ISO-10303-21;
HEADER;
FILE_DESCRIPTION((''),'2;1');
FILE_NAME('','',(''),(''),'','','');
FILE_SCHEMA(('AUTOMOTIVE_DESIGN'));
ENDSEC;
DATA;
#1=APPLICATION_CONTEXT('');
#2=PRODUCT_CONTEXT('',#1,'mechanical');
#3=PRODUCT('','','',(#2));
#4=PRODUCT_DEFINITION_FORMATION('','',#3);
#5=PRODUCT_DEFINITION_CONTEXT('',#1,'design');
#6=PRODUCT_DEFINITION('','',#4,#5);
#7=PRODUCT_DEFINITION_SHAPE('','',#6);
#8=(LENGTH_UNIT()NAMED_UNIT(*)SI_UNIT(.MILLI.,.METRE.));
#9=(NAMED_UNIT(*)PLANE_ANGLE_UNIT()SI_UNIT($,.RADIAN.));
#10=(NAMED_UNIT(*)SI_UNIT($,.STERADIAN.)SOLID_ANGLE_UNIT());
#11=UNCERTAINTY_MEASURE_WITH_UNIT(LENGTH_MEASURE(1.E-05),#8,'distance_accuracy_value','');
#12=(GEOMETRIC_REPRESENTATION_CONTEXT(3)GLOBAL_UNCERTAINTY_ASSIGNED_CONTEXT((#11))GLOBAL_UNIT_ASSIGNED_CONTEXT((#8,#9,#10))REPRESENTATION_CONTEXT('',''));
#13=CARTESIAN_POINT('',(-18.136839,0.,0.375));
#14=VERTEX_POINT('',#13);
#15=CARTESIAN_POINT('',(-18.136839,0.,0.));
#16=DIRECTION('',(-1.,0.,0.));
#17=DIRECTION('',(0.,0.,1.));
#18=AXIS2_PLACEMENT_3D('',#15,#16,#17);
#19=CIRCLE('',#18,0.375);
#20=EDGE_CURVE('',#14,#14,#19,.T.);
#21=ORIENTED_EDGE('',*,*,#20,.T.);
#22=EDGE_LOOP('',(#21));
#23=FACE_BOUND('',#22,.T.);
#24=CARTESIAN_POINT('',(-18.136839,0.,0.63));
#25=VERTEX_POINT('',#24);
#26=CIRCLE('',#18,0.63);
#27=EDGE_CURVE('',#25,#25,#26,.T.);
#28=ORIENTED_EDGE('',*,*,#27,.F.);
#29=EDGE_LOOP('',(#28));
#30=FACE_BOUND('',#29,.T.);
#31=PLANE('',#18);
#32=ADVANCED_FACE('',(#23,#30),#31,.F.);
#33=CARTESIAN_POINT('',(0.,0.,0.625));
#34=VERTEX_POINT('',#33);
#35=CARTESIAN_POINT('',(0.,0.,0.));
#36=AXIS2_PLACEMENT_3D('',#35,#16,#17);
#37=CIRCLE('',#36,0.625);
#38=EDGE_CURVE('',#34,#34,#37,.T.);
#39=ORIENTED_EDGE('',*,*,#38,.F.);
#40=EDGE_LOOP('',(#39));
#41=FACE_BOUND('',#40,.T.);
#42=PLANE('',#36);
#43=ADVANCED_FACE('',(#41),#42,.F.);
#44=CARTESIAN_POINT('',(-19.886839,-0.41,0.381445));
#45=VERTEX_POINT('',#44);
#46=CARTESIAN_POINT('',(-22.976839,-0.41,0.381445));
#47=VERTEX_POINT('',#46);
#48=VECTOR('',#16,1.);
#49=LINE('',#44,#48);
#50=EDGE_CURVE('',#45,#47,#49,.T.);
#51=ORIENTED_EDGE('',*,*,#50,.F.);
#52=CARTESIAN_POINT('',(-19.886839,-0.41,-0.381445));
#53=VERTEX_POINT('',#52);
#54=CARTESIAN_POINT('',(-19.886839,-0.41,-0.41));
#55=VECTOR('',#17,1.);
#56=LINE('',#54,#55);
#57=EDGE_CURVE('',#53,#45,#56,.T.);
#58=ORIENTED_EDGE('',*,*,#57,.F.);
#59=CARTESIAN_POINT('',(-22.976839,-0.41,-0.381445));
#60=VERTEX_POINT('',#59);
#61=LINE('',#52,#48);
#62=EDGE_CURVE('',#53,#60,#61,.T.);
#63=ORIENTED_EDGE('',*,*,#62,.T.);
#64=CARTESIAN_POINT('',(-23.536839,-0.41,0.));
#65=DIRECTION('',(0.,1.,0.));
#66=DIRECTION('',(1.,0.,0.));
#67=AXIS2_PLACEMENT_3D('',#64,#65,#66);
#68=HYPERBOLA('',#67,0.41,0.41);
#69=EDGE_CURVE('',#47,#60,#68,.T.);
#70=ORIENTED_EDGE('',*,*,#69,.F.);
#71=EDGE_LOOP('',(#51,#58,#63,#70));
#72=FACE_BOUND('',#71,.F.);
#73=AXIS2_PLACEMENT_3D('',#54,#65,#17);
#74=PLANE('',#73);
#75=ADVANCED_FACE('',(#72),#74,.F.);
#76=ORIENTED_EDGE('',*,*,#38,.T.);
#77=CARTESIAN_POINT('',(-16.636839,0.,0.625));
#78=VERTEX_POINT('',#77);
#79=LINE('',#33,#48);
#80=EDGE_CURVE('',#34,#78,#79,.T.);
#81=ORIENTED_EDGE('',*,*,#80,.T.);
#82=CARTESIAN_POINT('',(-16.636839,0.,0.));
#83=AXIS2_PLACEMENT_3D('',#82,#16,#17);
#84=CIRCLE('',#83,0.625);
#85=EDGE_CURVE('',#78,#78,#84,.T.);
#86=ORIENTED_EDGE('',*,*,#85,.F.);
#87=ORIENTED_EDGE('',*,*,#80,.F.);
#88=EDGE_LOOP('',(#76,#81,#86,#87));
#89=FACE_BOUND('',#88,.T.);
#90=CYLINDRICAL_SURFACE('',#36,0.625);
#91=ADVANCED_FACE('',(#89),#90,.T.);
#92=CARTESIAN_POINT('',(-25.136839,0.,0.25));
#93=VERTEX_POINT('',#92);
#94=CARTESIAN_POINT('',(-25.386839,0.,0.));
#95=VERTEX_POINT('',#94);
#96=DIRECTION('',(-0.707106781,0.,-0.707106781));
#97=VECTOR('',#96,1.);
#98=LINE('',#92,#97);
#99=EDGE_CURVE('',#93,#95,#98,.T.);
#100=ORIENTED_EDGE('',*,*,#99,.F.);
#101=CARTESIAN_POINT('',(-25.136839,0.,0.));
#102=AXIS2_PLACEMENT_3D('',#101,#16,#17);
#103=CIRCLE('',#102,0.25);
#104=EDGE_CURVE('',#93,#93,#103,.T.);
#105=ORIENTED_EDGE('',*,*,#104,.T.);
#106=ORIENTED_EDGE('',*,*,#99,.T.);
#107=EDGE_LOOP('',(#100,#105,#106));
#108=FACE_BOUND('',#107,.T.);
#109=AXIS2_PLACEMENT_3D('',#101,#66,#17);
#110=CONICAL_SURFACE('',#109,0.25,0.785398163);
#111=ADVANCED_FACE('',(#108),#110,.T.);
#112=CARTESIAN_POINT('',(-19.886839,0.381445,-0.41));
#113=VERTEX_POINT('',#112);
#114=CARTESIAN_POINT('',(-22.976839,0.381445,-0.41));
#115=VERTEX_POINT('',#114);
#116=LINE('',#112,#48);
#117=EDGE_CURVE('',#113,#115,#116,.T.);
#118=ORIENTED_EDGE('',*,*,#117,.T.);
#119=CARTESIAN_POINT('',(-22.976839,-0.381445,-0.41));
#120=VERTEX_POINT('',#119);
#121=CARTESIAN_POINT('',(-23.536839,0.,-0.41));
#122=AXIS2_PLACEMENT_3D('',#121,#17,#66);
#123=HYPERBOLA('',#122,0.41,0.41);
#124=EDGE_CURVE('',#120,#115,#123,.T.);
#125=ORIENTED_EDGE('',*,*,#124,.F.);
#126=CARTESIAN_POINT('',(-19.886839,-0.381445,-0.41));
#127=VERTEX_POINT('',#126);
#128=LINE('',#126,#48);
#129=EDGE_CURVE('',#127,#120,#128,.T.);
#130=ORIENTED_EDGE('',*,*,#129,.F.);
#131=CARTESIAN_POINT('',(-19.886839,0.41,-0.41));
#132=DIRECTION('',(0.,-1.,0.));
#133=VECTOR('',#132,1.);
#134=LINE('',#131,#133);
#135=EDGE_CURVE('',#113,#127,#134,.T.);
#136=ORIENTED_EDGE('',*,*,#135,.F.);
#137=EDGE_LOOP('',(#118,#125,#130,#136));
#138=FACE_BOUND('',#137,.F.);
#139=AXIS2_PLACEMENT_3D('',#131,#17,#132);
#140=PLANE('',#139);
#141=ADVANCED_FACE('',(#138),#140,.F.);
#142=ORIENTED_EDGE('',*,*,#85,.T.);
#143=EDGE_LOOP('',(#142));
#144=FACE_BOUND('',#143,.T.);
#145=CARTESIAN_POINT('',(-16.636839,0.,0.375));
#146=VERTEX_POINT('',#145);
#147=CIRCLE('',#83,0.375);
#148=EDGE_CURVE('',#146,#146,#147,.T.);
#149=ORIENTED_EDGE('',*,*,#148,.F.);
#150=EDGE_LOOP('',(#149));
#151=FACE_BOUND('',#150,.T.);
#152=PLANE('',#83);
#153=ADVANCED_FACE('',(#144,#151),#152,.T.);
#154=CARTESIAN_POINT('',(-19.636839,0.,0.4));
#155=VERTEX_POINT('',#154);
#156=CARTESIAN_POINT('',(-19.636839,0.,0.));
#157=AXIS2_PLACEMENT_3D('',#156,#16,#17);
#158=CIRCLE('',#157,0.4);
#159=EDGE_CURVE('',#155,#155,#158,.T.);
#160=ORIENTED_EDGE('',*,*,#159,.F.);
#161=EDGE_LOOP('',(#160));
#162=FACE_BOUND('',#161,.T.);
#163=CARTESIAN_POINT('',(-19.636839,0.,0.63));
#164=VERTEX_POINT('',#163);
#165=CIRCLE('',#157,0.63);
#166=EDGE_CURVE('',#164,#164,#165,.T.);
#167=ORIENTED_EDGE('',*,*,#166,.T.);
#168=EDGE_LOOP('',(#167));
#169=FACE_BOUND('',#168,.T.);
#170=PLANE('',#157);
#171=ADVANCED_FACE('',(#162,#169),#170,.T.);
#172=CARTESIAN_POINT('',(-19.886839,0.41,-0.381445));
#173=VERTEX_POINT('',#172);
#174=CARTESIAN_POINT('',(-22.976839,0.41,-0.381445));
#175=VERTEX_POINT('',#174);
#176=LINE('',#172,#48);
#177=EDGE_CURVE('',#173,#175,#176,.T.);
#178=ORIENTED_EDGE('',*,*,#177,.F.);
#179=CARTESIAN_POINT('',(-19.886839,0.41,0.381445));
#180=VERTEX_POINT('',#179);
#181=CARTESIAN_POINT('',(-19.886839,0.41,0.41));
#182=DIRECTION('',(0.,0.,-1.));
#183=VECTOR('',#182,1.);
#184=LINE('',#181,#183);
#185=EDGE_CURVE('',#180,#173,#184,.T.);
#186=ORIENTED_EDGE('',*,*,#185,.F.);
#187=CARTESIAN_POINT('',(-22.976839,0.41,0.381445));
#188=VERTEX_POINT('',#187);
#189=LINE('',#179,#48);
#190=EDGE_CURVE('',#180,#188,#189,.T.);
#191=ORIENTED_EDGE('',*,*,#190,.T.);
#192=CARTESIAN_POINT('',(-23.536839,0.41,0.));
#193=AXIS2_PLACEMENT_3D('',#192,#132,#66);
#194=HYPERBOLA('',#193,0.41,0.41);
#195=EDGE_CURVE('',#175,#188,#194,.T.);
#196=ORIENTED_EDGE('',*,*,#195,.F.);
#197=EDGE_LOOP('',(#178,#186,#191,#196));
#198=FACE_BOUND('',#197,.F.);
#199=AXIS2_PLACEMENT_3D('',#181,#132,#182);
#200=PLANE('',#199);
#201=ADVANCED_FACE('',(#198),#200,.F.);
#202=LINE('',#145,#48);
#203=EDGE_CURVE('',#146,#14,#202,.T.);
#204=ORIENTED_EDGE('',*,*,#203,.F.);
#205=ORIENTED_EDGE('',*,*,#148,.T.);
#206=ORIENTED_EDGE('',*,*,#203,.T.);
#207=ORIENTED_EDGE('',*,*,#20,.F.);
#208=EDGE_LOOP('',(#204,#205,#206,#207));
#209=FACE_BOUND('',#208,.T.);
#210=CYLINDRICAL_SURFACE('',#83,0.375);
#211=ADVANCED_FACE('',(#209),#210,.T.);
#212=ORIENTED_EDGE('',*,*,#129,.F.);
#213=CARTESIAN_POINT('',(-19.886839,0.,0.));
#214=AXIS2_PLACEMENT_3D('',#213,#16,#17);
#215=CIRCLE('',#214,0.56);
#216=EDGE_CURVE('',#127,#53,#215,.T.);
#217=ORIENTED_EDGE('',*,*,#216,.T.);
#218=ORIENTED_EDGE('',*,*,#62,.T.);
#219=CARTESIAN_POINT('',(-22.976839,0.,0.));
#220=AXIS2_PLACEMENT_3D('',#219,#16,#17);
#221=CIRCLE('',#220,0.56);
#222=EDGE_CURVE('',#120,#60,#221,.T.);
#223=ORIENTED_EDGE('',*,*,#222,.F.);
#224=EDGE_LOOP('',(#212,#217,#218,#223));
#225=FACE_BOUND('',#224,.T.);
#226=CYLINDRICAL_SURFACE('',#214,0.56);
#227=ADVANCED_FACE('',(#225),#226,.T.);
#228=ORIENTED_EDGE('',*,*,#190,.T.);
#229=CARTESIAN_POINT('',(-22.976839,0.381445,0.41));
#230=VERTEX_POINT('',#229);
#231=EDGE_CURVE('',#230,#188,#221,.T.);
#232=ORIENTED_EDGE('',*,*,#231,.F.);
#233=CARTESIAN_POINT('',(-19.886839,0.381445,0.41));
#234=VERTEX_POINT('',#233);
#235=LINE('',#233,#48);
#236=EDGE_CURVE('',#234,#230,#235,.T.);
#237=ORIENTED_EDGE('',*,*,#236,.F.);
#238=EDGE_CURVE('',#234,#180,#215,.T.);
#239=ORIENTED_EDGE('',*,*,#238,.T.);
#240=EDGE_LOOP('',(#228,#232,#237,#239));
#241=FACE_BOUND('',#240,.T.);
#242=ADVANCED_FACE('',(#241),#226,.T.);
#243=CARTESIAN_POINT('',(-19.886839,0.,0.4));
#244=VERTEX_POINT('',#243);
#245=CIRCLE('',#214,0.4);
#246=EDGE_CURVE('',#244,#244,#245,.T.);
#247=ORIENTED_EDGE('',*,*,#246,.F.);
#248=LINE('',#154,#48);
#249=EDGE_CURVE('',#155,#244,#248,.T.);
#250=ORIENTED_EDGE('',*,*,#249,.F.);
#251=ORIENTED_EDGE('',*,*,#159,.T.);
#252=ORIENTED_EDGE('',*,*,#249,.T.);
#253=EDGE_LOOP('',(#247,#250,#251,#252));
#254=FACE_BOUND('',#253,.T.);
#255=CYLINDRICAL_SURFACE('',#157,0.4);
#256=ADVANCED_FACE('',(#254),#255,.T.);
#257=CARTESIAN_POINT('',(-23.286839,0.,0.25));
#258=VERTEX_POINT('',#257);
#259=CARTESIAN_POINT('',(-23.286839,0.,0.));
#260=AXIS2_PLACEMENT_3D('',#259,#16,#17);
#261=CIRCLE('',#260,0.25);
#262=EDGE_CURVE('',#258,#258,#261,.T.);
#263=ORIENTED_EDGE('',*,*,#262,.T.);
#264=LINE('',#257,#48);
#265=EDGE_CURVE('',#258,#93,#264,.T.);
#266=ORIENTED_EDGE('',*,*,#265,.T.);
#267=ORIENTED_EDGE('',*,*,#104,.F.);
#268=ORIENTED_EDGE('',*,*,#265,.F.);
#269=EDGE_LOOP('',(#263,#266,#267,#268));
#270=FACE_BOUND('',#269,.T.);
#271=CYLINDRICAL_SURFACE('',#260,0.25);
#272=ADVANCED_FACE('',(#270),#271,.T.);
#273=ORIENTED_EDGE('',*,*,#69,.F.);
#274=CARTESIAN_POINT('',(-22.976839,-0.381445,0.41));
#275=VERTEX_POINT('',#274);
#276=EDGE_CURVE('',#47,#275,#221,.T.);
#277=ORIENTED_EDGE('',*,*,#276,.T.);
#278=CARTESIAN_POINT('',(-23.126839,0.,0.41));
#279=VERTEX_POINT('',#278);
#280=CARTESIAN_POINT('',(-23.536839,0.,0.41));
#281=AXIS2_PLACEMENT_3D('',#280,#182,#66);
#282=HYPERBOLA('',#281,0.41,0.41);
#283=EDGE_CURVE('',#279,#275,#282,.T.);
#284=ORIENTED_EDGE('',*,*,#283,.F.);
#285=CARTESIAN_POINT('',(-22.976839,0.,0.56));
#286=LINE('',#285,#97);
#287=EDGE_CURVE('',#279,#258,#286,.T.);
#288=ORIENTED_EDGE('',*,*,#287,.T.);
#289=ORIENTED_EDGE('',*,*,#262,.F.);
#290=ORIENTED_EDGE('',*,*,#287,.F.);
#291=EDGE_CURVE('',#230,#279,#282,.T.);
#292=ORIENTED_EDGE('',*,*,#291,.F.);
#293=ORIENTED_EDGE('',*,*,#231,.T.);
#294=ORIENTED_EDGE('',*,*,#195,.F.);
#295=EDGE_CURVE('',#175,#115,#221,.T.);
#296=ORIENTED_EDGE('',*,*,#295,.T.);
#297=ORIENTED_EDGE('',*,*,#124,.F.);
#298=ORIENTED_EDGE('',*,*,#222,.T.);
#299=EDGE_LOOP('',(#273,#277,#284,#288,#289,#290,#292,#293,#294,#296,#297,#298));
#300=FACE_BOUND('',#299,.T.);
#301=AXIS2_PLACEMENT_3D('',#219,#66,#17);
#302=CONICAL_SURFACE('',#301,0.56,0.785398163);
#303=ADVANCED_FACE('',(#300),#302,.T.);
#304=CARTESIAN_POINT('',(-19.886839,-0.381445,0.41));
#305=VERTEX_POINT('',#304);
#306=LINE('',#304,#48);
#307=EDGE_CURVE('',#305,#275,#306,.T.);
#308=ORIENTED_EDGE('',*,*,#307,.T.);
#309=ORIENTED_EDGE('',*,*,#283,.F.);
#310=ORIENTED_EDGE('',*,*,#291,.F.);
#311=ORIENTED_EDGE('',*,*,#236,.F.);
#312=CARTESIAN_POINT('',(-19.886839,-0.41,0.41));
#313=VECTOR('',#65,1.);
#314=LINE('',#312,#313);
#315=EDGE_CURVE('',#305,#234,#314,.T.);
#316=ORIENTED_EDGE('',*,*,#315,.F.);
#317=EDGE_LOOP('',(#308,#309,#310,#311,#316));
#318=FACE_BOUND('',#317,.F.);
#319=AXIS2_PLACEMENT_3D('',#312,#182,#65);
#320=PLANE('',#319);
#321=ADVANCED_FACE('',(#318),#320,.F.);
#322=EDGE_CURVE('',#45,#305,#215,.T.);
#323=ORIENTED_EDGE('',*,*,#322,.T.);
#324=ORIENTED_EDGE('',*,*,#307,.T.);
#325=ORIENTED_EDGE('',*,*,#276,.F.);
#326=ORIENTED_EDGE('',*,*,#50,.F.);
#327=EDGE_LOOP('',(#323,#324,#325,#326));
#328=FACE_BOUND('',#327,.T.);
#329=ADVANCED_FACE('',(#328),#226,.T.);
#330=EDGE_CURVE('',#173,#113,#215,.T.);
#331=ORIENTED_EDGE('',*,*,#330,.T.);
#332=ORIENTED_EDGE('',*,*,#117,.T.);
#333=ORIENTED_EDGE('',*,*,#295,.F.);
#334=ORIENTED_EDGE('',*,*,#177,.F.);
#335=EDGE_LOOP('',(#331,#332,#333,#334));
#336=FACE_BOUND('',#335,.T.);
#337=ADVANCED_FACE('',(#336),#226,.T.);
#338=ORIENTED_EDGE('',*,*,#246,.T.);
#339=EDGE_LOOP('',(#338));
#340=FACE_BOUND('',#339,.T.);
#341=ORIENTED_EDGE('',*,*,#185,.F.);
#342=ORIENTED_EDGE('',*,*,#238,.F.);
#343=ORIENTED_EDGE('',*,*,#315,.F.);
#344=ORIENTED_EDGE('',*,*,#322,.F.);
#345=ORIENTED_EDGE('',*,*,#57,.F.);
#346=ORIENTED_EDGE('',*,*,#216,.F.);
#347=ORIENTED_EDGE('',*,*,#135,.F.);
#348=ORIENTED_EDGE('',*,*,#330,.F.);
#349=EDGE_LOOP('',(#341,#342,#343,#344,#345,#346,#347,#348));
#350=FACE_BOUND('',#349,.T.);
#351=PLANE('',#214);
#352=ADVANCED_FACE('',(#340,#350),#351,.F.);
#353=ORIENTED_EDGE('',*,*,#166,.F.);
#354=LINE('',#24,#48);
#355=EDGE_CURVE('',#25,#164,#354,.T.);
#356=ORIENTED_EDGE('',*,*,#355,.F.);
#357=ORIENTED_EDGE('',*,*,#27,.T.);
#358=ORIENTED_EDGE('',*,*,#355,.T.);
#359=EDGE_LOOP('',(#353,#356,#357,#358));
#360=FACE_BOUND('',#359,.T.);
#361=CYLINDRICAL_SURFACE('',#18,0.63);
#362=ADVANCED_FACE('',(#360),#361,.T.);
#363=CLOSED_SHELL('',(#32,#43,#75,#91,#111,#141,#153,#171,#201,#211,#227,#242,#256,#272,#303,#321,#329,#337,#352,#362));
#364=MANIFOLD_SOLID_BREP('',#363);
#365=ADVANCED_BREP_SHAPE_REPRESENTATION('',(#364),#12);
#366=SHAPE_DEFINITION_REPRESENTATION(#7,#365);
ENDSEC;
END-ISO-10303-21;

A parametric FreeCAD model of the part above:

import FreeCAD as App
import Part
import Sketcher
Q = App.Units.Quantity


def add_polygon(sketch, points):
    """Adds a closed chain of lines whose ends are joined by coincident constraints."""
    first, n = sketch.GeometryCount, len(points)
    for a, b in zip(points, points[1:] + points[:1]):
        sketch.addGeometry(Part.LineSegment(App.Vector(*a, 0), App.Vector(*b, 0)), False)
    for i in range(n):
        sketch.addConstraint(Sketcher.Constraint("Coincident", first + i, 2, first + (i + 1) % n, 1))

doc = App.newDocument("Part")
body = doc.addObject("PartDesign::Body", "Body")

sketch1 = body.newObject("Sketcher::SketchObject", "Sketch")
sketch1.AttachmentSupport = (doc.getObject("XZ_Plane"), [""])
sketch1.MapMode = "FlatFace"
add_polygon(sketch1, [(-25.39, 0), (0, 0), (0, 0.62), (-16.64, 0.62), (-16.64, 0.38), (-18.14, 0.38), (-18.14, 0.63), (-19.64, 0.63), (-19.64, 0.4), (-19.89, 0.4), (-19.89, 0.56), (-22.98, 0.56), (-23.29, 0.25), (-25.14, 0.25)])
sketch1.addConstraint([
    Sketcher.Constraint("Horizontal", 0),
    Sketcher.Constraint("Vertical", 1),
    Sketcher.Constraint("Horizontal", 2),
    Sketcher.Constraint("Vertical", 3),
    Sketcher.Constraint("Horizontal", 4),
    Sketcher.Constraint("Vertical", 5),
    Sketcher.Constraint("Horizontal", 6),
    Sketcher.Constraint("Vertical", 7),
    Sketcher.Constraint("Horizontal", 8),
    Sketcher.Constraint("Vertical", 9),
    Sketcher.Constraint("Horizontal", 10),
    Sketcher.Constraint("Horizontal", 12),
    Sketcher.Constraint("Coincident", 0, 2, -1, 1),
    Sketcher.Constraint("Parallel", 11, 13),
    Sketcher.Constraint("Equal", 4, 6),
    Sketcher.Constraint("Equal", 8, 3),
    Sketcher.Constraint("Angle", 11, Q("-135 deg")),
    Sketcher.Constraint("DistanceX", 4, 2, 4, 1, 1.5),
    Sketcher.Constraint("DistanceX", 8, 2, 8, 1, 0.25),
    Sketcher.Constraint("DistanceX", 10, 2, 10, 1, 3.09),
    Sketcher.Constraint("DistanceX", 12, 2, 12, 1, 1.85),
    Sketcher.Constraint("DistanceY", 7, 2, 7, 1, 0.23),
    Sketcher.Constraint("DistanceY", 9, 1, 9, 2, 0.16),
    Sketcher.Constraint("DistanceY", -1, 1, 7, 2, 0.4),
    Sketcher.Constraint("DistanceX", 11, 2, 8, 2, 3.4),
    Sketcher.Constraint("DistanceY", 1, 1, 1, 2, 0.625),
    Sketcher.Constraint("DistanceX", 0, 1, 0, 2, 25.386839),
])
revolution = body.newObject("PartDesign::Revolution", "Revolution")
revolution.Profile = sketch1
revolution.ReferenceAxis = (sketch1, ["H_Axis"])
revolution.Angle = 360

sketch2 = body.newObject("Sketcher::SketchObject", "Sketch001")
sketch2.AttachmentSupport = (doc.getObject("YZ_Plane"), [""])
sketch2.MapMode = "FlatFace"
sketch2.AttachmentOffset = App.Placement(App.Vector(0, 0, -19.886839), App.Rotation())
sketch2.addGeometry(Part.Circle(App.Vector(0, 0, 0), App.Vector(0, 0, 1), 1), False)
add_polygon(sketch2, [(-0.4, -0.4), (-0.4, 0.4), (0.4, 0.4), (0.4, -0.4)])
sketch2.addConstraint([
    Sketcher.Constraint("Vertical", 1),
    Sketcher.Constraint("Horizontal", 2),
    Sketcher.Constraint("Vertical", 3),
    Sketcher.Constraint("Horizontal", 4),
    Sketcher.Constraint("Coincident", 0, 3, -1, 1),
    Sketcher.Constraint("Symmetric", 1, 2, 3, 2, -1, 1),
    Sketcher.Constraint("Equal", 4, 1),
    Sketcher.Constraint("DistanceX", 2, 1, 2, 2, 0.82),
    Sketcher.Constraint("Diameter", 0, 1.989506),
])
pocket1 = body.newObject("PartDesign::Pocket", "Pocket")
pocket1.Profile = sketch2
pocket1.Type = "ThroughAll"

doc.recompute()
